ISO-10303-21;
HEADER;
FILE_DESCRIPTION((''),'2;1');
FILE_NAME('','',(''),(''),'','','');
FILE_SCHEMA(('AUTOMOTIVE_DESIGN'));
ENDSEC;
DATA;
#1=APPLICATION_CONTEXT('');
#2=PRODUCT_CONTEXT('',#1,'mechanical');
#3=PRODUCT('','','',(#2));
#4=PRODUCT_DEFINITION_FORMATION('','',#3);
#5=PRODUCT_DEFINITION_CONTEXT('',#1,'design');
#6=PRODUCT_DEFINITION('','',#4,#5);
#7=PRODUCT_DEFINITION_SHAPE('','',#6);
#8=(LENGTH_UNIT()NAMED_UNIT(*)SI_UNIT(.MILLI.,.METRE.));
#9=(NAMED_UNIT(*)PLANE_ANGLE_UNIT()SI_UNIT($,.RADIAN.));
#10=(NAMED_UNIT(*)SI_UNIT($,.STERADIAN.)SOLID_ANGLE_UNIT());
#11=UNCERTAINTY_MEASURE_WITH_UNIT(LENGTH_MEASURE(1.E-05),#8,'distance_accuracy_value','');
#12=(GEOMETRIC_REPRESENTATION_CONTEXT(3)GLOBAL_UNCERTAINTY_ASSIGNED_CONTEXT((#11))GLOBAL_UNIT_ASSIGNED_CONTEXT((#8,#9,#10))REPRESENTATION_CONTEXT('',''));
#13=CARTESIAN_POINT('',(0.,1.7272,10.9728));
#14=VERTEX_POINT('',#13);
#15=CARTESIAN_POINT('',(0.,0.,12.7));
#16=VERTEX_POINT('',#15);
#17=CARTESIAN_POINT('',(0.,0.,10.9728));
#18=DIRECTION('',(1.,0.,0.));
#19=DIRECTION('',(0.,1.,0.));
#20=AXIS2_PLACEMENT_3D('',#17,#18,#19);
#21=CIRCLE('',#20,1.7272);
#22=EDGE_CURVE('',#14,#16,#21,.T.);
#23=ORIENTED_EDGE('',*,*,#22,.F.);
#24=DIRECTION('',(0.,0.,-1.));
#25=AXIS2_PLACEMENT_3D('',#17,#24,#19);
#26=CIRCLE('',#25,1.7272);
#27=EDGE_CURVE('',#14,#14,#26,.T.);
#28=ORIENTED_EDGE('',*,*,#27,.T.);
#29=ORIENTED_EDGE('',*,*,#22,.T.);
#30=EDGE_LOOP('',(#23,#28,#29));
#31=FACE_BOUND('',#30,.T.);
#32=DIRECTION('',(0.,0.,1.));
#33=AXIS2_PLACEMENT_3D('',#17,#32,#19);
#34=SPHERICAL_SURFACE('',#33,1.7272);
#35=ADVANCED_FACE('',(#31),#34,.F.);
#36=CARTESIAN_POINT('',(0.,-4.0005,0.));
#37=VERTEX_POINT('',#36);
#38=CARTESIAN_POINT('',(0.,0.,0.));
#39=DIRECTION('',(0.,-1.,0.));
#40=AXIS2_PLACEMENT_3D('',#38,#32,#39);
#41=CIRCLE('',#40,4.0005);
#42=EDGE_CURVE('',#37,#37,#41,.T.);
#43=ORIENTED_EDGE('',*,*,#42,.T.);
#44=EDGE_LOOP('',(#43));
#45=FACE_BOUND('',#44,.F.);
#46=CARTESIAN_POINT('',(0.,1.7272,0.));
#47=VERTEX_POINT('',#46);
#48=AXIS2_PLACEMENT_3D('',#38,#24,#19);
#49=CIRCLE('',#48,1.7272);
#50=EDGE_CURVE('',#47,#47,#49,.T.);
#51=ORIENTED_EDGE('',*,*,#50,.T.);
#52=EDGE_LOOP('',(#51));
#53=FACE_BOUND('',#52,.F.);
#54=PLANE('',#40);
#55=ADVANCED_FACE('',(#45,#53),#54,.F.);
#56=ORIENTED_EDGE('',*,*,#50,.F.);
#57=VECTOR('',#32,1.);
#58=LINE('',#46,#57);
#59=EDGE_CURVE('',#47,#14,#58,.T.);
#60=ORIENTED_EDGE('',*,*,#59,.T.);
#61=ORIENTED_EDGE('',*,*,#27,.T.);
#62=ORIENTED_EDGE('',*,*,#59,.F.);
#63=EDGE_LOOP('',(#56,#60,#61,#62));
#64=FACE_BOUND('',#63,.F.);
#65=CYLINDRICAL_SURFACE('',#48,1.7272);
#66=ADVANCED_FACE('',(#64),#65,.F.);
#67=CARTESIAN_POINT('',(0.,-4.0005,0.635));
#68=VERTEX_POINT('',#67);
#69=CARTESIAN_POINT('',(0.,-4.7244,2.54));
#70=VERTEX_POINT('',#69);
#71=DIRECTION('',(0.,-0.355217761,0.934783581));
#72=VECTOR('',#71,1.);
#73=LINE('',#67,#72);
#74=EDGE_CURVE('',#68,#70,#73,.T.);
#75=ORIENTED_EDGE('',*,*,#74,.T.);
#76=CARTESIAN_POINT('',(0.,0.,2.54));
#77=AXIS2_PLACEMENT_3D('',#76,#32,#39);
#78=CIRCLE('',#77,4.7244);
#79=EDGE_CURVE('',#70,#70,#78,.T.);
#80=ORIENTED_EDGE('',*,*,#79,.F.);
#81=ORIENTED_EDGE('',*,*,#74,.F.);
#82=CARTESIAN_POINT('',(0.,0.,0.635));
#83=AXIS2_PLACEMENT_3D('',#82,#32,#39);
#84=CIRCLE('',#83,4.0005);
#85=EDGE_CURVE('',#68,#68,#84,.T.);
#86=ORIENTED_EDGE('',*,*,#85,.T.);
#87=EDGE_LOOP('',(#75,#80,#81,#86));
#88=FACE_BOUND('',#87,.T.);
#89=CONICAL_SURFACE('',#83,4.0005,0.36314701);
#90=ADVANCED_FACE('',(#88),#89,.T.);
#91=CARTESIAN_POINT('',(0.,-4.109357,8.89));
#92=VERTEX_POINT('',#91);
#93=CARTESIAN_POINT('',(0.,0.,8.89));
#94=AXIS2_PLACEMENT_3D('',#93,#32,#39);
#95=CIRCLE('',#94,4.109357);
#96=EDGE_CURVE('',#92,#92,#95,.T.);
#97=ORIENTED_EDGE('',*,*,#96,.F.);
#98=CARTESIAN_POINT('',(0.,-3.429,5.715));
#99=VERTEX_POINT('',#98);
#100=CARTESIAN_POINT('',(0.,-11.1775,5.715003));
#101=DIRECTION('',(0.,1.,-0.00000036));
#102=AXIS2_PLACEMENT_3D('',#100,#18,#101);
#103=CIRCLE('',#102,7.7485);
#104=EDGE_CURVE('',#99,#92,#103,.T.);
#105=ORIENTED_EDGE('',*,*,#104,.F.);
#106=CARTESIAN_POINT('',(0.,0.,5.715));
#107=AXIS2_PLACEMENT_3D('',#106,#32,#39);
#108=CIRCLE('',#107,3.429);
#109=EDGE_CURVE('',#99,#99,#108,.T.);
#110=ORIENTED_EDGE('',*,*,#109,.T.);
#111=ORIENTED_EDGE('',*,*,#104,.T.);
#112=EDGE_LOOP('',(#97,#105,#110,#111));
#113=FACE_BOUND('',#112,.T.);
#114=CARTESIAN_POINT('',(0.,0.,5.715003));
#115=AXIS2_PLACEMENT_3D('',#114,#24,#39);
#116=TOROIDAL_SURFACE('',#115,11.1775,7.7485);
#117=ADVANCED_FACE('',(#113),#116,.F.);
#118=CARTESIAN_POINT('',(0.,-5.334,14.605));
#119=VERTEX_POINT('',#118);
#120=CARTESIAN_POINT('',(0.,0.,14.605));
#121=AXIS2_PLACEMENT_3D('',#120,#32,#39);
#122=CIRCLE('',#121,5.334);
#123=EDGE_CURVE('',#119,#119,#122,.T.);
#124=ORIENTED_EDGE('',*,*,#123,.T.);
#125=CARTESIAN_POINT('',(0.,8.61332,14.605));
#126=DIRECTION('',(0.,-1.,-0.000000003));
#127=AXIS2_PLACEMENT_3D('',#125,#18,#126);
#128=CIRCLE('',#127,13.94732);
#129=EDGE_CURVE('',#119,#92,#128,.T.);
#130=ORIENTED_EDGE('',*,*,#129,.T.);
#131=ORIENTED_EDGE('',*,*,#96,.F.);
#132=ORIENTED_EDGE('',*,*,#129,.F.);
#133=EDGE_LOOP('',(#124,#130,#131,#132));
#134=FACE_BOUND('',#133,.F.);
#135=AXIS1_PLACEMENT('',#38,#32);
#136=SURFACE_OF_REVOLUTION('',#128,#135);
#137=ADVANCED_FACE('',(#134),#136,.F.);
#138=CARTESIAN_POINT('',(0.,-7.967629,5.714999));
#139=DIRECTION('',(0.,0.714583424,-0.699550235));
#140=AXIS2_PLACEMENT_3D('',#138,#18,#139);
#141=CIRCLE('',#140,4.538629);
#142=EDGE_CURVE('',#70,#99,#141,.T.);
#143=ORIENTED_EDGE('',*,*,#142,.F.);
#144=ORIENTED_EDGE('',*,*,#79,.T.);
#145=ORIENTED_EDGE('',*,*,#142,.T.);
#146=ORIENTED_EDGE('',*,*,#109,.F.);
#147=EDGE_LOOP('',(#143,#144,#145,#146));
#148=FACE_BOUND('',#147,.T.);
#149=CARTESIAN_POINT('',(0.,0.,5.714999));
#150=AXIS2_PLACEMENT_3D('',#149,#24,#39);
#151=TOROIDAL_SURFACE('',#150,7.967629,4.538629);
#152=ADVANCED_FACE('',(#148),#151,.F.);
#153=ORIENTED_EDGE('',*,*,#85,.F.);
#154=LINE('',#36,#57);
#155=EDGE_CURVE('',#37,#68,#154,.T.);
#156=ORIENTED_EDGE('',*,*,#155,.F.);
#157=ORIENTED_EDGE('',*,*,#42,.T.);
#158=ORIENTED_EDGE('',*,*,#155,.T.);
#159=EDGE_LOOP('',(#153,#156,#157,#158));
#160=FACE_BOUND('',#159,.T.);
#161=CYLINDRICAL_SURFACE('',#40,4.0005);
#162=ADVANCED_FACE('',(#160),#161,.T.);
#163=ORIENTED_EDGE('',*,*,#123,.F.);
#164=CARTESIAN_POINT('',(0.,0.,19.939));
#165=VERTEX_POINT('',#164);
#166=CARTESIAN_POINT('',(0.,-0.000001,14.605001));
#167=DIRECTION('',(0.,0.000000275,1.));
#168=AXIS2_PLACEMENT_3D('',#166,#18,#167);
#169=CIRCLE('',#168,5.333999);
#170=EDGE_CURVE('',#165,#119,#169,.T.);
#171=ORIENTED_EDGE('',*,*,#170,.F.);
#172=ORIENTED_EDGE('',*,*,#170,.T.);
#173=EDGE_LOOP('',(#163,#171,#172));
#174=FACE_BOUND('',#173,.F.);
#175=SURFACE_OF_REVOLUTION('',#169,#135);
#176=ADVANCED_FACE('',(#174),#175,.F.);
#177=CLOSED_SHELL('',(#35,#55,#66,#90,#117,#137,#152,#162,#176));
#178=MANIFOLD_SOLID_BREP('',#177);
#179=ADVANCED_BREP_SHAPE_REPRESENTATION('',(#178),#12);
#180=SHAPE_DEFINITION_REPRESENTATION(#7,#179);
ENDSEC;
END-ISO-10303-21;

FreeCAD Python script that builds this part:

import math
import FreeCAD as App
import Part
import Sketcher
from FreeCAD import Vector
Q = App.Units.Quantity


def edges_at(feature, points):
    """Names of the edges that pass closest to the given points."""
    edges = feature.Shape.Edges
    near = lambda p: min(range(len(edges)), key=lambda i: edges[i].distToShape(Part.Vertex(*p))[0])
    return sorted({f"Edge{near(p) + 1}" for p in points})

doc = App.newDocument("Part")
body = doc.addObject("PartDesign::Body", "Body")

sketch1 = body.newObject("Sketcher::SketchObject", "Sketch")
sketch1.AttachmentSupport = (doc.getObject("YZ_Plane"), [""])
sketch1.MapMode = "FlatFace"
sketch1.addGeometry([
    Part.LineSegment(Vector(-4, 0.6, 0), Vector(-4, 0, 0)),
    Part.LineSegment(Vector(-4, 0, 0), Vector(0, 0, 0)),
    Part.LineSegment(Vector(0, 0, 0), Vector(0, 19.9, 0)),
    Part.ArcOfCircle(Part.Circle(Vector(0, 14.6, 0), Vector(0, 0, 1), 5.3), math.radians(90), math.radians(180)),
    Part.ArcOfCircle(Part.Circle(Vector(8.6, 14.6, 0), Vector(0, 0, 1), 13.9), math.radians(-180), math.radians(-156)),
    Part.ArcOfCircle(Part.Circle(Vector(-11.2, 5.7, 0), Vector(0, 0, 1), 7.7), math.radians(0), math.radians(24)),
    Part.ArcOfCircle(Part.Circle(Vector(-8, 5.7, 0), Vector(0, 0, 1), 4.5), math.radians(-44), math.radians(0)),
    Part.LineSegment(Vector(-4.7, 2.5, 0), Vector(-4, 0.6, 0)),
], False)
sketch1.addConstraint([
    Sketcher.Constraint("Coincident", 0, 2, 1, 1),
    Sketcher.Constraint("Coincident", 1, 2, 2, 1),
    Sketcher.Constraint("Coincident", 2, 2, 3, 1),
    Sketcher.Constraint("Tangent", 3, 2, 4, 1),
    Sketcher.Constraint("Tangent", 4, 2, 5, 2),
    Sketcher.Constraint("Tangent", 5, 1, 6, 2),
    Sketcher.Constraint("Coincident", 6, 1, 7, 1),
    Sketcher.Constraint("Coincident", 7, 2, 0, 1),
    Sketcher.Constraint("Vertical", 0),
    Sketcher.Constraint("Horizontal", 1),
    Sketcher.Constraint("Vertical", 2),
    Sketcher.Constraint("Coincident", 1, 2, -1, 1),
    Sketcher.Constraint("PointOnObject", 3, 3, -2),
    Sketcher.Constraint("Horizontal", 3, 3, 4, 3),
    Sketcher.Constraint("Horizontal", 6, 3, 5, 1),
    Sketcher.Constraint("Radius", 3, Q("0.2099999 in")),
    Sketcher.Constraint("DistanceY", -1, 1, 6, 1, Q("0.1 in")),
    Sketcher.Constraint("DistanceY", 7, 2, 5, 1, Q("0.2 in")),
    Sketcher.Constraint("DistanceY", 0, 2, 0, 1, Q("0.025 in")),
    Sketcher.Constraint("DistanceY", 2, 1, 2, 2, Q("0.785 in")),
    Sketcher.Constraint("DistanceY", -1, 1, 4, 2, Q("0.35 in")),
    Sketcher.Constraint("Radius", 5, Q("7.7485 mm")),
    Sketcher.Constraint("DistanceX", 1, 1, 1, 2, Q("0.1575 in")),
    Sketcher.Constraint("DistanceX", 6, 1, -1, 1, Q("0.186 in")),
])
revolution = body.newObject("PartDesign::Revolution", "Revolution")
revolution.Profile = sketch1
revolution.ReferenceAxis = (sketch1, ["V_Axis"])
revolution.Angle = 360

sketch2 = body.newObject("Sketcher::SketchObject", "Sketch001")
sketch2.AttachmentSupport = (doc.getObject("XY_Plane"), [""])
sketch2.MapMode = "FlatFace"
sketch2.addGeometry(Part.Circle(Vector(0, 0, 0), Vector(0, 0, 1), 1.7), False)
sketch2.addConstraint([
    Sketcher.Constraint("Coincident", 0, 3, -1, 1),
    Sketcher.Constraint("Diameter", 0, Q("0.136 in")),
])
pocket1 = body.newObject("PartDesign::Pocket", "Pocket")
pocket1.Profile = sketch2
pocket1.Length = Q("0.5 in")
pocket1.Reversed = True
doc.recompute()

fillet = body.newObject("PartDesign::Fillet", "Fillet")
fillet.Base = (pocket1, edges_at(pocket1, [(0, -1.727, 12.7)]))
fillet.Radius = Q("0.068 in")

doc.recompute()
